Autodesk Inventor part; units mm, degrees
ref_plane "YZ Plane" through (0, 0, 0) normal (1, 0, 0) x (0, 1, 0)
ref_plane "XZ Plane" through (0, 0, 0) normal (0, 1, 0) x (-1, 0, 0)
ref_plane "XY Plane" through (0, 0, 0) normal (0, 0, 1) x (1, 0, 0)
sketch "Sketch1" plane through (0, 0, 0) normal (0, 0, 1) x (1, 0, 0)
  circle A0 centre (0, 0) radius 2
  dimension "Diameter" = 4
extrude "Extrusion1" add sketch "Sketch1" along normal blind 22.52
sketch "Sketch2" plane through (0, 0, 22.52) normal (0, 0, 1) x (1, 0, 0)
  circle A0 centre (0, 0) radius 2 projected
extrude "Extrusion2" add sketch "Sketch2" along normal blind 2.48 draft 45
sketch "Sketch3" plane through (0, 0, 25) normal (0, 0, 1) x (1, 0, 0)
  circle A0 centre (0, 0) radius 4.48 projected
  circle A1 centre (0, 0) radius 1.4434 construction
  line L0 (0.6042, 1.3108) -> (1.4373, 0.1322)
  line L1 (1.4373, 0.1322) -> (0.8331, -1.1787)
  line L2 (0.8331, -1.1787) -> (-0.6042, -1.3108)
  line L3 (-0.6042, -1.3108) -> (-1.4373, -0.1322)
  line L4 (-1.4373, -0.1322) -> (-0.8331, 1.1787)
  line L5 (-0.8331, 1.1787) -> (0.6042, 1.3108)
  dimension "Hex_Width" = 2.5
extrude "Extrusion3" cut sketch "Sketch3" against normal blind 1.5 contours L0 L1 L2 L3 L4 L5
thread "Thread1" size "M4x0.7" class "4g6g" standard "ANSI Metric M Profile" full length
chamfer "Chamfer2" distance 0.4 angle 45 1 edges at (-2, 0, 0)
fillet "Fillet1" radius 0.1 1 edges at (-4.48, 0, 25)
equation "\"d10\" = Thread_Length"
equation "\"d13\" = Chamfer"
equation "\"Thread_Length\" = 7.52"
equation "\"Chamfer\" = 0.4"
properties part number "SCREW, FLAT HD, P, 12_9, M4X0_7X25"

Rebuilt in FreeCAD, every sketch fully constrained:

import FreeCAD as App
import Part
import Sketcher
from FreeCAD import Vector


def edges_at(feature, points):
    """Names of the edges that pass closest to the given points."""
    edges = feature.Shape.Edges
    near = lambda p: min(range(len(edges)), key=lambda i: edges[i].distToShape(Part.Vertex(*p))[0])
    return sorted({f"Edge{near(p) + 1}" for p in points})

doc = App.newDocument("Part")
body = doc.addObject("PartDesign::Body", "Body")

# Sketch on XY plane
sketch1 = body.newObject("Sketcher::SketchObject", "Sketch")
sketch1.AttachmentSupport = (doc.getObject("XY_Plane"), [""])
sketch1.MapMode = "FlatFace"
sketch1.addGeometry(Part.Circle(Vector(0, 0, 0), Vector(0, 0, 1), 2), False)
sketch1.addConstraint(Sketcher.Constraint("Coincident", 0, 3, -1, 1))
sketch1.addConstraint(Sketcher.Constraint("Diameter", 0, 4.0))
pad1 = body.newObject("PartDesign::Pad", "Pad")
pad1.Profile = sketch1
pad1.Length = 22.52

# Sketch on XY plane
sketch2 = body.newObject("Sketcher::SketchObject", "Sketch001")
sketch2.AttachmentSupport = (doc.getObject("XY_Plane"), [""])
sketch2.MapMode = "FlatFace"
sketch2.AttachmentOffset = App.Placement(Vector(0, 0, 22.52), App.Rotation())
sketch2.addGeometry(Part.Circle(Vector(0, 0, 0), Vector(0, 0, 1), 2), False)
sketch2.addConstraint(Sketcher.Constraint("Coincident", 0, 3, -1, 1))
sketch2.addConstraint(Sketcher.Constraint("Diameter", 0, 4.0))
pad2 = body.newObject("PartDesign::Pad", "Pad001")
pad2.Profile = sketch2
pad2.Length = 2.48
pad2.TaperAngle = 45

# Sketch on XY plane
sketch3 = body.newObject("Sketcher::SketchObject", "Sketch002")
sketch3.AttachmentSupport = (doc.getObject("XY_Plane"), [""])
sketch3.MapMode = "FlatFace"
sketch3.AttachmentOffset = App.Placement(Vector(0, 0, 25), App.Rotation())
sketch3.addGeometry(Part.LineSegment(Vector(1.4373, 0.1322, 0), Vector(0.6042, 1.3108, 0)), False)
sketch3.addGeometry(Part.LineSegment(Vector(0.6042, 1.3108, 0), Vector(-0.8331, 1.1787, 0)), False)
sketch3.addGeometry(Part.LineSegment(Vector(-0.8331, 1.1787, 0), Vector(-1.4373, -0.1322, 0)), False)
sketch3.addGeometry(Part.LineSegment(Vector(-1.4373, -0.1322, 0), Vector(-0.6042, -1.3108, 0)), False)
sketch3.addGeometry(Part.LineSegment(Vector(-0.6042, -1.3108, 0), Vector(0.8331, -1.1787, 0)), False)
sketch3.addGeometry(Part.LineSegment(Vector(0.8331, -1.1787, 0), Vector(1.4373, 0.1322, 0)), False)
sketch3.addConstraint(Sketcher.Constraint("Coincident", 0, 2, 1, 1))
sketch3.addConstraint(Sketcher.Constraint("Coincident", 1, 2, 2, 1))
sketch3.addConstraint(Sketcher.Constraint("Coincident", 2, 2, 3, 1))
sketch3.addConstraint(Sketcher.Constraint("Coincident", 3, 2, 4, 1))
sketch3.addConstraint(Sketcher.Constraint("Coincident", 4, 2, 5, 1))
sketch3.addConstraint(Sketcher.Constraint("Coincident", 5, 2, 0, 1))
sketch3.addConstraint(Sketcher.Constraint("Symmetric", 0, 2, 3, 2, -1, 1))
sketch3.addConstraint(Sketcher.Constraint("Symmetric", 1, 2, 4, 2, -1, 1))
sketch3.addConstraint(Sketcher.Constraint("Symmetric", 2, 2, 5, 2, -1, 1))
sketch3.addConstraint(Sketcher.Constraint("Equal", 0, 1))
sketch3.addConstraint(Sketcher.Constraint("Equal", 1, 2))
sketch3.addConstraint(Sketcher.Constraint("DistanceX", 1, 2, -1, 1, 0.833))
sketch3.addConstraint(Sketcher.Constraint("DistanceY", 1, 2, 0, 2, 0.132))
sketch3.addConstraint(Sketcher.Constraint("DistanceY", 2, 2, 1, 2, 1.311))
sketch3.addConstraint(Sketcher.Constraint("DistanceX", 2, 2, 3, 2, 0.833))
pocket1 = body.newObject("PartDesign::Pocket", "Pocket")
pocket1.Profile = sketch3
pocket1.Length = 1.5
doc.recompute()

chamfer = body.newObject("PartDesign::Chamfer", "Chamfer")
chamfer.Base = (pocket1, edges_at(pocket1, [(-2, 0, 0)]))
chamfer.Size = 0.4
doc.recompute()

fillet = body.newObject("PartDesign::Fillet", "Fillet")
fillet.Base = (chamfer, edges_at(chamfer, [(-4.48, 0, 25)]))
fillet.Radius = 0.1

doc.recompute()
